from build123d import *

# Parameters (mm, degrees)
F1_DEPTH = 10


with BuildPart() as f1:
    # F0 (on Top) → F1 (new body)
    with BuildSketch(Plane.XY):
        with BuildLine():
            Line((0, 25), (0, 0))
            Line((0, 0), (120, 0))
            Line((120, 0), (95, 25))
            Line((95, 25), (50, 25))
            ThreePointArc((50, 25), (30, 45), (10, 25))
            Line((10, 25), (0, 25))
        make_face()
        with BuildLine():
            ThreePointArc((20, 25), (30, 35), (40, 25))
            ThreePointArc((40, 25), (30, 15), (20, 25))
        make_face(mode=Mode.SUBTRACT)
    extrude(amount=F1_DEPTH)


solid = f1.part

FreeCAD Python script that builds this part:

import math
import FreeCAD as App
import Part
import Sketcher
from FreeCAD import Vector

doc = App.newDocument("Part")
body = doc.addObject("PartDesign::Body", "Body")

sketch1 = body.newObject("Sketcher::SketchObject", "Sketch")
sketch1.AttachmentSupport = (doc.getObject("XY_Plane"), [""])
sketch1.MapMode = "FlatFace"
sketch1.addGeometry([
    Part.LineSegment(Vector(0, 25, 0), Vector(0, 0, 0)),
    Part.LineSegment(Vector(0, 0, 0), Vector(120, 0, 0)),
    Part.LineSegment(Vector(120, 0, 0), Vector(95, 25, 0)),
    Part.LineSegment(Vector(95, 25, 0), Vector(50, 25, 0)),
    Part.ArcOfCircle(Part.Circle(Vector(30, 25, 0), Vector(0, 0, 1), 20), math.radians(0), math.radians(180)),
    Part.LineSegment(Vector(10, 25, 0), Vector(0, 25, 0)),
    Part.Circle(Vector(30, 25, 0), Vector(0, 0, 1), 10),
], False)
sketch1.addConstraint([
    Sketcher.Constraint("Coincident", 0, 2, 1, 1),
    Sketcher.Constraint("Coincident", 1, 2, 2, 1),
    Sketcher.Constraint("Coincident", 2, 2, 3, 1),
    Sketcher.Constraint("Coincident", 3, 2, 4, 1),
    Sketcher.Constraint("Coincident", 4, 2, 5, 1),
    Sketcher.Constraint("Coincident", 5, 2, 0, 1),
    Sketcher.Constraint("Vertical", 0),
    Sketcher.Constraint("Horizontal", 1),
    Sketcher.Constraint("Horizontal", 3),
    Sketcher.Constraint("Horizontal", 5),
    Sketcher.Constraint("Coincident", 0, 2, -1, 1),
    Sketcher.Constraint("Coincident", 6, 3, 4, 3),
    Sketcher.Constraint("Horizontal", 6, 3, 2, 2),
    Sketcher.Constraint("Horizontal", 3, 2, 4, 2),
    Sketcher.Constraint("Diameter", 6, 20.0),
    Sketcher.Constraint("Radius", 4, 20.0),
    Sketcher.Constraint("DistanceX", 1, 1, 1, 2, 120.0),
    Sketcher.Constraint("DistanceX", 3, 2, 3, 1, 45.0),
    Sketcher.Constraint("DistanceX", 5, 2, 5, 1, 10.0),
    Sketcher.Constraint("DistanceY", 0, 2, 0, 1, 25.0),
])
pad1 = body.newObject("PartDesign::Pad", "Pad")
pad1.Profile = sketch1
pad1.Length = 10

doc.recompute()
